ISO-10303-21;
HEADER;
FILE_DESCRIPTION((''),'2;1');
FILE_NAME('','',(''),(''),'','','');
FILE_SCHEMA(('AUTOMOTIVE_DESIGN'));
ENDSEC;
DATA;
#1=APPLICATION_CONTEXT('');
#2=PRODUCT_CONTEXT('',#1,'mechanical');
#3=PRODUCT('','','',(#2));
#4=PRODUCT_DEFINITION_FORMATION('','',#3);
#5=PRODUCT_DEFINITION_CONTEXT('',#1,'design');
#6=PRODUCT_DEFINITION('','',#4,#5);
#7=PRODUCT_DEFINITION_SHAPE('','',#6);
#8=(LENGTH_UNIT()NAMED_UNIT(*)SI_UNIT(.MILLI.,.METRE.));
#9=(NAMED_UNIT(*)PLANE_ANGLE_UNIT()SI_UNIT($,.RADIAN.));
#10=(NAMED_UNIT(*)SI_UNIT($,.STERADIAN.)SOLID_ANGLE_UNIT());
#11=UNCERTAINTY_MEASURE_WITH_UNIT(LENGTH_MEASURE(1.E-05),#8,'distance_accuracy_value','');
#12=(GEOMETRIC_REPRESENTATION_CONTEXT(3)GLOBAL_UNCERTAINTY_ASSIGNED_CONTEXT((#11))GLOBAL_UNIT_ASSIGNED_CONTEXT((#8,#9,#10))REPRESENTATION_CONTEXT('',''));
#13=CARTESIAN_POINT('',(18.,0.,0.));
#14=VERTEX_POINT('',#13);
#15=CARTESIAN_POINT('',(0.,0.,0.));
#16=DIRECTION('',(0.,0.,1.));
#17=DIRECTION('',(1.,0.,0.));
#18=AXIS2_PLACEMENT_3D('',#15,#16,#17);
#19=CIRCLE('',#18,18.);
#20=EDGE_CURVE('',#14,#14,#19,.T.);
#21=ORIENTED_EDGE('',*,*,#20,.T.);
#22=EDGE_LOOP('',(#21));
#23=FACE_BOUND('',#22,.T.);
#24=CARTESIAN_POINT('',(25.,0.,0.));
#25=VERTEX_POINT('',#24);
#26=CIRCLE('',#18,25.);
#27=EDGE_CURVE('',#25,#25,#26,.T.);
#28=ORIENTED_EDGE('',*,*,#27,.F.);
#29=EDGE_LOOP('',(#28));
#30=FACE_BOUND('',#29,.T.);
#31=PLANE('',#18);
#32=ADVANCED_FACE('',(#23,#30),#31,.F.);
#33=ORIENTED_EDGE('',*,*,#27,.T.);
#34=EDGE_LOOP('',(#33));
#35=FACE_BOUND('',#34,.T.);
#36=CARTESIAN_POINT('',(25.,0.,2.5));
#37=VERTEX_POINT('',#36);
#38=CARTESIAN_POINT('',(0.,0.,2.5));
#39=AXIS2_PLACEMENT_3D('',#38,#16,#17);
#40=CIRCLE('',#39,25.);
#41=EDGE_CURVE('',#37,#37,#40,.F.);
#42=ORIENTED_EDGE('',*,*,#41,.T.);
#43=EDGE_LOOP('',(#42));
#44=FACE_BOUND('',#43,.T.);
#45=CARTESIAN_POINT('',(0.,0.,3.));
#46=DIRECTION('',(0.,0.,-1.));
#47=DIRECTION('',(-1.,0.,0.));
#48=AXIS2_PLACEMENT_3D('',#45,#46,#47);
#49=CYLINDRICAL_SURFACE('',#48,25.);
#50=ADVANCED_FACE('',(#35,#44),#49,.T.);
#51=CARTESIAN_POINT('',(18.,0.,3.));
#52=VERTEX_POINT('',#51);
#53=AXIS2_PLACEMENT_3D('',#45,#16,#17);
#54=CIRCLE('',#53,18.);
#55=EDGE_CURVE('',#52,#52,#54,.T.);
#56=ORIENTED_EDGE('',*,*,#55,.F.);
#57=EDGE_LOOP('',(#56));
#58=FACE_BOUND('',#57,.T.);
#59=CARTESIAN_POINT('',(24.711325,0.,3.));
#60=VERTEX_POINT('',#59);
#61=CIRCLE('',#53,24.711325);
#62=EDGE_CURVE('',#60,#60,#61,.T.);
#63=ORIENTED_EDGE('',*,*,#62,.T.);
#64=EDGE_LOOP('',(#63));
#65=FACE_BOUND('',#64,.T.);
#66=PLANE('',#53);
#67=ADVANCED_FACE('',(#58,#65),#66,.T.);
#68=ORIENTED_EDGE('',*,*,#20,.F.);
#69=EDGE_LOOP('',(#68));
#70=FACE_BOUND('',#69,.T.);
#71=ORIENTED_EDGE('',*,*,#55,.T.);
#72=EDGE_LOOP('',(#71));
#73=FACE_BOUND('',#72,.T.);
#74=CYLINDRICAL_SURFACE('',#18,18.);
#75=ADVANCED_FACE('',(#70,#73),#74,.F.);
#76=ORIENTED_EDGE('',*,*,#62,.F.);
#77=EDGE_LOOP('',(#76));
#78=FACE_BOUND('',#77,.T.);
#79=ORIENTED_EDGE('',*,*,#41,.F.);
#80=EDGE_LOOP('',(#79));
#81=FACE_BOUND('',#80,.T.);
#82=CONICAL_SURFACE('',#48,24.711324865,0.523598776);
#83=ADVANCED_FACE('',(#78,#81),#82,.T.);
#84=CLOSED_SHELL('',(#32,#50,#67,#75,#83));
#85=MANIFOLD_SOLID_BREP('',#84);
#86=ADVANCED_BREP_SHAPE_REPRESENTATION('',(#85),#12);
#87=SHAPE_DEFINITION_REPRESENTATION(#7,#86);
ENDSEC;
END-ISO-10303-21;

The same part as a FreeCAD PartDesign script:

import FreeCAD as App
import Part
import Sketcher

V = App.Vector
Q = App.Units.Quantity


def edges_at(feature, points):
    """Names of the edges that pass closest to the given points."""
    edges = feature.Shape.Edges
    near = lambda p: min(range(len(edges)), key=lambda i: edges[i].distToShape(Part.Vertex(*p))[0])
    return sorted({f"Edge{near(p) + 1}" for p in points})

doc = App.newDocument("Part")
body = doc.addObject("PartDesign::Body", "Body")

# Sketch on XY plane
sketch1 = body.newObject("Sketcher::SketchObject", "Sketch")
sketch1.AttachmentSupport = (doc.getObject("XY_Plane"), [""])
sketch1.MapMode = "FlatFace"
sketch1.addGeometry(Part.Circle(V(0, 0, 0), V(0, 0, 1), 25), False)
sketch1.addConstraint([
    Sketcher.Constraint("Coincident", 0, 3, -1, 1),
    Sketcher.Constraint("Diameter", 0, Q("50 mm")),
])
pad1 = body.newObject("PartDesign::Pad", "Pad")
pad1.Profile = sketch1
pad1.Length = 3

# Sketch on XY plane
sketch2 = body.newObject("Sketcher::SketchObject", "Sketch001")
sketch2.AttachmentSupport = (doc.getObject("XY_Plane"), [""])
sketch2.MapMode = "FlatFace"
sketch2.AttachmentOffset = App.Placement(V(0, 0, 3), App.Rotation())
sketch2.addGeometry(Part.Circle(V(0, 0, 0), V(0, 0, 1), 18), False)
sketch2.addConstraint([
    Sketcher.Constraint("Coincident", 0, 3, -1, 1),
    Sketcher.Constraint("Diameter", 0, Q("36 mm")),
])
pocket1 = body.newObject("PartDesign::Pocket", "Pocket")
pocket1.Profile = sketch2
pocket1.Type = "ThroughAll"
doc.recompute()

chamfer = body.newObject("PartDesign::Chamfer", "Chamfer")
chamfer.Base = (pocket1, edges_at(pocket1, [(-25, 0, 3)]))
chamfer.ChamferType = "Two distances"
chamfer.Size = 0.5
chamfer.Size2 = 0.288675

doc.recompute()
